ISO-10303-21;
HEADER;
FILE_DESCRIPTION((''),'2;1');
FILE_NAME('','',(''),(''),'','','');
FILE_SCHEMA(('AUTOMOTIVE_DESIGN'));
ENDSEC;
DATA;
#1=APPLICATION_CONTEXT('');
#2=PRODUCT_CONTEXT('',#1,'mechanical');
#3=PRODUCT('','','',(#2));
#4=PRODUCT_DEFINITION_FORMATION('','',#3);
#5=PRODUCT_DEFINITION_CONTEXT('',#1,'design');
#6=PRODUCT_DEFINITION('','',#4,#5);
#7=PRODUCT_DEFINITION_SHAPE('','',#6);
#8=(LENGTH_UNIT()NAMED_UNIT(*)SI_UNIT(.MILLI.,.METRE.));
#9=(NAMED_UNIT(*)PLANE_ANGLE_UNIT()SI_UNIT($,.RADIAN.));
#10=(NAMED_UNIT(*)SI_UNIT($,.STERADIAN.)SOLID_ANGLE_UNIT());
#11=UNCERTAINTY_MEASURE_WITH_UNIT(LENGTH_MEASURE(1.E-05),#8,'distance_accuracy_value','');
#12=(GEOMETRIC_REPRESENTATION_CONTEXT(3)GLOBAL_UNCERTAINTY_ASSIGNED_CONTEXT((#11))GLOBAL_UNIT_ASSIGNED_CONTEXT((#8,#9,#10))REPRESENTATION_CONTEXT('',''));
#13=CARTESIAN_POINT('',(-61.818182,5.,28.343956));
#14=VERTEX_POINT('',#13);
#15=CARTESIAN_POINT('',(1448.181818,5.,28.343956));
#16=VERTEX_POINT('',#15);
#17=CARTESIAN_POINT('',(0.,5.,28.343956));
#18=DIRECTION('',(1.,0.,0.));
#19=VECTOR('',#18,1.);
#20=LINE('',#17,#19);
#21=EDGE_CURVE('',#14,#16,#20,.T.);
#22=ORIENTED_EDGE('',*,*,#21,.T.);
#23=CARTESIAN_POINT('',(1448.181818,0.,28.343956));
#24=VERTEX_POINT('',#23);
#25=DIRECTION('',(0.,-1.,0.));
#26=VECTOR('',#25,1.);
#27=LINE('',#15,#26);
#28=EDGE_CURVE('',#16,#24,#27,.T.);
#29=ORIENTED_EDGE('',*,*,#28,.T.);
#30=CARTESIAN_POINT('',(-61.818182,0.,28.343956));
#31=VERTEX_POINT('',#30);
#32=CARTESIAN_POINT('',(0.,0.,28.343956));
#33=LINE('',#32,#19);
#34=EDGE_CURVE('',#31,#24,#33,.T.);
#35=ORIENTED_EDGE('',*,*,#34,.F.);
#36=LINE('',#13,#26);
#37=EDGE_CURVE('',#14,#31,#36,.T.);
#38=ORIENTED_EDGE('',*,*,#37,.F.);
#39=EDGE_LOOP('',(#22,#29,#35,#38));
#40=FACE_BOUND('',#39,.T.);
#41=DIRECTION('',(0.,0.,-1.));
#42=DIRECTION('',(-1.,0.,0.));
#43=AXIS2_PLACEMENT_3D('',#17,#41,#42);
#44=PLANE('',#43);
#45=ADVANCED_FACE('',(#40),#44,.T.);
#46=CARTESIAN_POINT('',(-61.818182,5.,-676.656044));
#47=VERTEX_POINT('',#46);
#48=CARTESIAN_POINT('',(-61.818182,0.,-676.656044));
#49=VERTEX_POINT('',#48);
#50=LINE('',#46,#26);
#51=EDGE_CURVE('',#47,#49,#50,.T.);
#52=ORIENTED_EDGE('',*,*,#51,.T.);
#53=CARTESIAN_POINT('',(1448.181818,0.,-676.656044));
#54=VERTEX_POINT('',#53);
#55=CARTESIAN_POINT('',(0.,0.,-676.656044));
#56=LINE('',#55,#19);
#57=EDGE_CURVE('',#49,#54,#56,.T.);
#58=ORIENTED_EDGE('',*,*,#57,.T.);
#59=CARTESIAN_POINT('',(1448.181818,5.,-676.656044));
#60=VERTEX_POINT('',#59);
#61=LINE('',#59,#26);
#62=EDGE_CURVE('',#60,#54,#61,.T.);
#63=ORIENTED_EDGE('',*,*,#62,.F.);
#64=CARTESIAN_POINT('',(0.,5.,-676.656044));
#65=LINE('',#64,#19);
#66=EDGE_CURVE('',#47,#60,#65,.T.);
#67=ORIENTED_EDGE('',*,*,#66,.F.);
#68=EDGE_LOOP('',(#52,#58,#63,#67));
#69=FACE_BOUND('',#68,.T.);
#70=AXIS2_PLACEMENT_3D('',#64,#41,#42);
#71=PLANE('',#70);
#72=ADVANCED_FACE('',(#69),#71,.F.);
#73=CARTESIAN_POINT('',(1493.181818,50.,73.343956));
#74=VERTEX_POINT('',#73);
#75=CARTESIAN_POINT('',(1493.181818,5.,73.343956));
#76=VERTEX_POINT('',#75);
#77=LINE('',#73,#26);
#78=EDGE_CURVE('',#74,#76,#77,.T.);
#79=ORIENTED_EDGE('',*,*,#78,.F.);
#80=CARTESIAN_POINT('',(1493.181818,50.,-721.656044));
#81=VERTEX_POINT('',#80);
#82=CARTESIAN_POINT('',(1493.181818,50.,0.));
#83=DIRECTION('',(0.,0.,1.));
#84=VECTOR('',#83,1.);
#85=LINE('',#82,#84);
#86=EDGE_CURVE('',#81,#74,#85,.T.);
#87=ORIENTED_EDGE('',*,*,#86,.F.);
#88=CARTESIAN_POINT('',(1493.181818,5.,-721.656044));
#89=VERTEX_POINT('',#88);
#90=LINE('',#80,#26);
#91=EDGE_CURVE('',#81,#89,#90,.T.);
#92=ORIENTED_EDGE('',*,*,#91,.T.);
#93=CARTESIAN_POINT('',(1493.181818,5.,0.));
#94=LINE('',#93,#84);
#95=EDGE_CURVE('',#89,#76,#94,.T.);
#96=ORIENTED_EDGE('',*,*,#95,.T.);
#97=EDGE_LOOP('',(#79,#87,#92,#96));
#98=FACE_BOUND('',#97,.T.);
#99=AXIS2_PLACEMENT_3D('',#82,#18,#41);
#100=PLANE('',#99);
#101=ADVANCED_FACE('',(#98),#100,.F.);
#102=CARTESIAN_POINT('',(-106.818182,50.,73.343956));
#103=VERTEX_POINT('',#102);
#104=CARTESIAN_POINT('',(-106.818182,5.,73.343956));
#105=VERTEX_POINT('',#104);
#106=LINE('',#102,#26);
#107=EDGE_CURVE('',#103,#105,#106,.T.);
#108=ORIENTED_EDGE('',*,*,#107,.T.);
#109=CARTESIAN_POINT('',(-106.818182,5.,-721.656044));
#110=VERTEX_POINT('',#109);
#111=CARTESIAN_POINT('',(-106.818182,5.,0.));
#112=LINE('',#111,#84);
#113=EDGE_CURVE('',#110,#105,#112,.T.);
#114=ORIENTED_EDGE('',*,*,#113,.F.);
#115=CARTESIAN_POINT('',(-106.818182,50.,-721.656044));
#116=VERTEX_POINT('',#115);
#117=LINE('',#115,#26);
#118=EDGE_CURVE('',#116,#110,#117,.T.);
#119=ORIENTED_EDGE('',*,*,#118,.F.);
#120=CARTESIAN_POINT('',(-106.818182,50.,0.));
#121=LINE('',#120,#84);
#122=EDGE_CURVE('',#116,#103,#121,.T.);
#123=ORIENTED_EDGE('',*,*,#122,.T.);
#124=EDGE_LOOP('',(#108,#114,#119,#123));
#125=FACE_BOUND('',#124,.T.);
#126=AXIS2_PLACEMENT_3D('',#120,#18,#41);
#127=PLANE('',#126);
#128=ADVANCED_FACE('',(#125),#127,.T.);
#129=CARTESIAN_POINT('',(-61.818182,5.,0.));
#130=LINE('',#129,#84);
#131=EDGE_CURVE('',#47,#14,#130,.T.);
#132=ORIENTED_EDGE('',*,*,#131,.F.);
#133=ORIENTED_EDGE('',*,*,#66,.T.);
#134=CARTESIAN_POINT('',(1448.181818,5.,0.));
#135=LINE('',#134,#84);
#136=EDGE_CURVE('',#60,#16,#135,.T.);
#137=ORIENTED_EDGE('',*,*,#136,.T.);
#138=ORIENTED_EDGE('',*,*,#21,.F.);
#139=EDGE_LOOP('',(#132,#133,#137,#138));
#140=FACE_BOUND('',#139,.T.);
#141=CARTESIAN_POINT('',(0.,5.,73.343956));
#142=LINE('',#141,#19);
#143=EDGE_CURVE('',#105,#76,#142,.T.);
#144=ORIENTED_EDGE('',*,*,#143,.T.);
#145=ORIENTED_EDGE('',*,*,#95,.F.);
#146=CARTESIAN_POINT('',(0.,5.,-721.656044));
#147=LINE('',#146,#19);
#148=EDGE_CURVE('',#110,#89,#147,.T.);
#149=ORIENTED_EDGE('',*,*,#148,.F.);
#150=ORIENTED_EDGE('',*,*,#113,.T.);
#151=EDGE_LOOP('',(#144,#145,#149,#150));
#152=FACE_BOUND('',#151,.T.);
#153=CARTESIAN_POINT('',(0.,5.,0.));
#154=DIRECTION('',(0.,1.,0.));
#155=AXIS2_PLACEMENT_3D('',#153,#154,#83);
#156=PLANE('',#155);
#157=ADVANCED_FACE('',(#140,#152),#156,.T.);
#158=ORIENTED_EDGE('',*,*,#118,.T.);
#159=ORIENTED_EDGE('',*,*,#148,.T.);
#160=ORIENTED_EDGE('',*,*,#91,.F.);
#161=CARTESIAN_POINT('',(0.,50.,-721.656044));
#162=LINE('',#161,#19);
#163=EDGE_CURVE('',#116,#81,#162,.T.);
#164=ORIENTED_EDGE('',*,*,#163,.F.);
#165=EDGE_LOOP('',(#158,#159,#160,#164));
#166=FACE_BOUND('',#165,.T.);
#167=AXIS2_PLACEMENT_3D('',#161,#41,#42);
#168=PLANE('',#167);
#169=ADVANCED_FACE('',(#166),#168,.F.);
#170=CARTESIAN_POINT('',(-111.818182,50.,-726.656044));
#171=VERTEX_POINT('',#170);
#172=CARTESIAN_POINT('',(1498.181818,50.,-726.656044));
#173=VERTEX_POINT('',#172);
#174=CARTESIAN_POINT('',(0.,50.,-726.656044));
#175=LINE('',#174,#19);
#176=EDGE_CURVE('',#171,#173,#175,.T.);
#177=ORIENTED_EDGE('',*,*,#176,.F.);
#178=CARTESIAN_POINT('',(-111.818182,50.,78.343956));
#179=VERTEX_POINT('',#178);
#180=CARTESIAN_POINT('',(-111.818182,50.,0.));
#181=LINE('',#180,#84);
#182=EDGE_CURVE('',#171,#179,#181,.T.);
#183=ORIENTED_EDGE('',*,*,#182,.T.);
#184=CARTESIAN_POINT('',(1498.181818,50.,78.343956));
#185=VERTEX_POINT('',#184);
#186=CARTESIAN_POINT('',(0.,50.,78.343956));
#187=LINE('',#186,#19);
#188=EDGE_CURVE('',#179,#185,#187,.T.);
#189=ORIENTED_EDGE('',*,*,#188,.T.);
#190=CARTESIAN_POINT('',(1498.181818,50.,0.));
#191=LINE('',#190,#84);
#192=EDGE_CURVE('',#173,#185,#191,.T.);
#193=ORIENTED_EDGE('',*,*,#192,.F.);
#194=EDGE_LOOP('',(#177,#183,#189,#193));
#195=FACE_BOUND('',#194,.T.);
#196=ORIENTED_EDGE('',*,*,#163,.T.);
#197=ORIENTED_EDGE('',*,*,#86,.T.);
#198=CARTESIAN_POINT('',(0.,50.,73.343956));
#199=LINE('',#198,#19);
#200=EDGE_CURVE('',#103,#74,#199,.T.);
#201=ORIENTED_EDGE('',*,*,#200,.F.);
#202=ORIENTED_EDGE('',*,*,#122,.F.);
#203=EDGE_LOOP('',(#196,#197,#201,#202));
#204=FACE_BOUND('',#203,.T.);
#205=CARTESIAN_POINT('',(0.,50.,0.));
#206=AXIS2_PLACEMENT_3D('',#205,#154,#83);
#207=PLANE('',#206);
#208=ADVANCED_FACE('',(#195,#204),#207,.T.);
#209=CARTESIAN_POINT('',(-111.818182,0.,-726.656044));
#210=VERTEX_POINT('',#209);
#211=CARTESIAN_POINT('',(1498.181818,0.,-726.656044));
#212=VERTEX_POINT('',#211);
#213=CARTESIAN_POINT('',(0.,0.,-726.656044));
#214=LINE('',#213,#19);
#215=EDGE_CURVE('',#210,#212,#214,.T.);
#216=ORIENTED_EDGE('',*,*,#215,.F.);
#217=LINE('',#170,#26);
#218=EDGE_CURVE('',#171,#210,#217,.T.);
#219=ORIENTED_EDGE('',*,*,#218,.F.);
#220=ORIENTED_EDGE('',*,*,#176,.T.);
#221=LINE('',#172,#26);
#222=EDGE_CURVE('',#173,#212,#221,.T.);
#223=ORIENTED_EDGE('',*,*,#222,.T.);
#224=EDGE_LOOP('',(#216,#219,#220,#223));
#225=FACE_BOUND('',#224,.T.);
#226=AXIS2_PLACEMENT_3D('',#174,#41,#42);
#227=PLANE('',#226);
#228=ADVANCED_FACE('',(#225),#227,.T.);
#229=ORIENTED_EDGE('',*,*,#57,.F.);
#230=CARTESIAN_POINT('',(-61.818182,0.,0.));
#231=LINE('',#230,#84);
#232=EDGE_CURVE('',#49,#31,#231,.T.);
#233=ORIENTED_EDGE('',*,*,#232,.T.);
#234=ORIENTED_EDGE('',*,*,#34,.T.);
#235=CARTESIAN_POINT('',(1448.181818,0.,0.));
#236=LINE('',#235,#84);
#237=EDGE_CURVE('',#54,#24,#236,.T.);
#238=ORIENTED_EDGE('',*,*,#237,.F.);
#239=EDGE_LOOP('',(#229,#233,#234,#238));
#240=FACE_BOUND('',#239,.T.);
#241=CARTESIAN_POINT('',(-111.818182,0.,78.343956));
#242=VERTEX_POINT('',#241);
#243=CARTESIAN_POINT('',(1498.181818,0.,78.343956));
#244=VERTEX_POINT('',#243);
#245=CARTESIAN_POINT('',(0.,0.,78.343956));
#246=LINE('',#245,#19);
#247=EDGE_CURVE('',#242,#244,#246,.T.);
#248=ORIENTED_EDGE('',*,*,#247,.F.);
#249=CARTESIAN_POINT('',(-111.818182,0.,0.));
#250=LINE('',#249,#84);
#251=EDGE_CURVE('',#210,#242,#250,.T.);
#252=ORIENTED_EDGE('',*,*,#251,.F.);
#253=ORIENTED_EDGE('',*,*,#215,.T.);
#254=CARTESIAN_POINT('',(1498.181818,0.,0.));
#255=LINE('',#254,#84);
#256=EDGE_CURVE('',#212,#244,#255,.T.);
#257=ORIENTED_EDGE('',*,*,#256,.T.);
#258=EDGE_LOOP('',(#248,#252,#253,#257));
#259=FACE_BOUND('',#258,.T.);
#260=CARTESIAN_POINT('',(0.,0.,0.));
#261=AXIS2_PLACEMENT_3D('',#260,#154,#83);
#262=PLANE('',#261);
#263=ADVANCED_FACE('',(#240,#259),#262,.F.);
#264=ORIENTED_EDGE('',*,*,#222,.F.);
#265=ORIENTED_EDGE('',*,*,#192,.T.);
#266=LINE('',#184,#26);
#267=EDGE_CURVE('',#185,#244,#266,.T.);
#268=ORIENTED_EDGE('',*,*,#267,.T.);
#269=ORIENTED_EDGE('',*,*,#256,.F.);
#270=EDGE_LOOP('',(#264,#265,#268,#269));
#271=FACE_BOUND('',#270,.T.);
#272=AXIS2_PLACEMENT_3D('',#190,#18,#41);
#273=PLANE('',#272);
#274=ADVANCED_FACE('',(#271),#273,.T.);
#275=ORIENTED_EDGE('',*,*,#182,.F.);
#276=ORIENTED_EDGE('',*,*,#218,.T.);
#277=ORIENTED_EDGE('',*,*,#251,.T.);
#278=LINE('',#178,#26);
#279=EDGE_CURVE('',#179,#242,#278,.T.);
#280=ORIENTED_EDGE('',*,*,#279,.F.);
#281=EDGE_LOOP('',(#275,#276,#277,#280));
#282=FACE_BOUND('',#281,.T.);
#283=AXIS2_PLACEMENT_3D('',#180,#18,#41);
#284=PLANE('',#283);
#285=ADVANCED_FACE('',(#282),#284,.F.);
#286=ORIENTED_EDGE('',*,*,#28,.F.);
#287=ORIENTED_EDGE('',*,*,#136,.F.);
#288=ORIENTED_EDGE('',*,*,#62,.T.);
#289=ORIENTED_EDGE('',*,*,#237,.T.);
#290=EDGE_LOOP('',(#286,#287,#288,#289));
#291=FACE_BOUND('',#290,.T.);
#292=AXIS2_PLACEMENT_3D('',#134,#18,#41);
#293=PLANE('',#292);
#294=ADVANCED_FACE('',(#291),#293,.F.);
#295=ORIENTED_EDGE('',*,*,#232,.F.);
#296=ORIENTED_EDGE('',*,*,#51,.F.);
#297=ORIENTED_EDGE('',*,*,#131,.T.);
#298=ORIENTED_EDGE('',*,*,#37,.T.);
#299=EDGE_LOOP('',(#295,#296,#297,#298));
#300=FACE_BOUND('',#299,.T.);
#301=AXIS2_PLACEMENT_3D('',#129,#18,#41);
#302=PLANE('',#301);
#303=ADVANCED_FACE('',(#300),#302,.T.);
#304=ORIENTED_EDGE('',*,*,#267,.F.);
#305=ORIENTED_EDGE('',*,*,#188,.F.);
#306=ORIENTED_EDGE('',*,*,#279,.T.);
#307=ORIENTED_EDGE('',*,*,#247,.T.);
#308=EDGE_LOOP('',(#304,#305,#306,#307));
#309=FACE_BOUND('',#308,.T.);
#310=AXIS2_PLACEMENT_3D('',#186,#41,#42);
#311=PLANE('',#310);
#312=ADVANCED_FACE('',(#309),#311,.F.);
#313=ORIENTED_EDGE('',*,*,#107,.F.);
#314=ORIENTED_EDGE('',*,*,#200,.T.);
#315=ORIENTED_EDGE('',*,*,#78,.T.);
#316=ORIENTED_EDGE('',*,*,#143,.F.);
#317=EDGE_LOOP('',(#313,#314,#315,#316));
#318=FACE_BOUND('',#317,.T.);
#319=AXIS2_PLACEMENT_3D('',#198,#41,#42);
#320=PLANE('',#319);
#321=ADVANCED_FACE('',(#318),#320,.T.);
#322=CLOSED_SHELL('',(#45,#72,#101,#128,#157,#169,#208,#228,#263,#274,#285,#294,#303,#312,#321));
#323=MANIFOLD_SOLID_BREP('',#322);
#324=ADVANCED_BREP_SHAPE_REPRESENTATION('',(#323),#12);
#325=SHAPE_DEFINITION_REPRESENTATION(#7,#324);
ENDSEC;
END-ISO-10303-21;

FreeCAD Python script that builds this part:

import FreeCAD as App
import Part
import Sketcher

V = App.Vector

doc = App.newDocument("Part")
body = doc.addObject("PartDesign::Body", "Body")

sketch1 = doc.addObject("Sketcher::SketchObject", "Sketch")
body.addObject(sketch1)
sketch1.AttachmentSupport = (doc.XZ_Plane, [""])
sketch1.MapMode = "FlatFace"
sketch1.addGeometry(Part.LineSegment(V(-112, -727, 0), V(-112, 78, 0)), False)
sketch1.addGeometry(Part.LineSegment(V(-112, 78, 0), V(1498, 78, 0)), False)
sketch1.addGeometry(Part.LineSegment(V(1498, 78, 0), V(1498, -727, 0)), False)
sketch1.addGeometry(Part.LineSegment(V(1498, -727, 0), V(-112, -727, 0)), False)
sketch1.addGeometry(Part.LineSegment(V(1493, 73, 0), V(-107, 73, 0)), False)
sketch1.addGeometry(Part.LineSegment(V(-107, 73, 0), V(-107, -722, 0)), False)
sketch1.addGeometry(Part.LineSegment(V(-107, -722, 0), V(1493, -722, 0)), False)
sketch1.addGeometry(Part.LineSegment(V(1493, -722, 0), V(1493, 73, 0)), False)
sketch1.addConstraint(Sketcher.Constraint("Coincident", 0, 2, 1, 1))
sketch1.addConstraint(Sketcher.Constraint("Coincident", 1, 2, 2, 1))
sketch1.addConstraint(Sketcher.Constraint("Coincident", 2, 2, 3, 1))
sketch1.addConstraint(Sketcher.Constraint("Coincident", 3, 2, 0, 1))
sketch1.addConstraint(Sketcher.Constraint("Coincident", 4, 2, 5, 1))
sketch1.addConstraint(Sketcher.Constraint("Coincident", 5, 2, 6, 1))
sketch1.addConstraint(Sketcher.Constraint("Coincident", 6, 2, 7, 1))
sketch1.addConstraint(Sketcher.Constraint("Coincident", 7, 2, 4, 1))
sketch1.addConstraint(Sketcher.Constraint("Vertical", 0))
sketch1.addConstraint(Sketcher.Constraint("Horizontal", 1))
sketch1.addConstraint(Sketcher.Constraint("Vertical", 2))
sketch1.addConstraint(Sketcher.Constraint("Horizontal", 3))
sketch1.addConstraint(Sketcher.Constraint("Horizontal", 4))
sketch1.addConstraint(Sketcher.Constraint("Vertical", 5))
sketch1.addConstraint(Sketcher.Constraint("Horizontal", 6))
sketch1.addConstraint(Sketcher.Constraint("Vertical", 7))
sketch1.addConstraint(Sketcher.Constraint("DistanceX", 1, 1, 1, 2, 1610.0))
sketch1.addConstraint(Sketcher.Constraint("DistanceX", 4, 2, 4, 1, 1600.0))
sketch1.addConstraint(Sketcher.Constraint("DistanceY", 0, 1, 0, 2, 805.0))
sketch1.addConstraint(Sketcher.Constraint("DistanceY", 5, 2, 5, 1, 795.0))
sketch1.addConstraint(Sketcher.Constraint("DistanceX", 0, 2, 4, 2, 5.0))
sketch1.addConstraint(Sketcher.Constraint("DistanceY", 4, 2, 0, 2, 5.0))
sketch1.addConstraint(Sketcher.Constraint("DistanceX", 0, 2, -1, 1, 111.818182))
sketch1.addConstraint(Sketcher.Constraint("DistanceY", -1, 1, 0, 2, 78.343956))
pad1 = doc.addObject("PartDesign::Pad", "Pad")
body.addObject(pad1)
pad1.Profile = sketch1
pad1.Length = 50
pad1.Reversed = True

sketch2 = doc.addObject("Sketcher::SketchObject", "Sketch001")
body.addObject(sketch2)
sketch2.AttachmentSupport = (doc.XZ_Plane, [""])
sketch2.MapMode = "FlatFace"
sketch2.addGeometry(Part.LineSegment(V(-107, -722, 0), V(-107, 73, 0)), False)
sketch2.addGeometry(Part.LineSegment(V(-107, 73, 0), V(1493, 73, 0)), False)
sketch2.addGeometry(Part.LineSegment(V(1493, 73, 0), V(1493, -722, 0)), False)
sketch2.addGeometry(Part.LineSegment(V(1493, -722, 0), V(-107, -722, 0)), False)
sketch2.addGeometry(Part.LineSegment(V(1448, 28, 0), V(-62, 28, 0)), False)
sketch2.addGeometry(Part.LineSegment(V(-62, 28, 0), V(-62, -677, 0)), False)
sketch2.addGeometry(Part.LineSegment(V(-62, -677, 0), V(1448, -677, 0)), False)
sketch2.addGeometry(Part.LineSegment(V(1448, -677, 0), V(1448, 28, 0)), False)
sketch2.addConstraint(Sketcher.Constraint("Coincident", 0, 2, 1, 1))
sketch2.addConstraint(Sketcher.Constraint("Coincident", 1, 2, 2, 1))
sketch2.addConstraint(Sketcher.Constraint("Coincident", 2, 2, 3, 1))
sketch2.addConstraint(Sketcher.Constraint("Coincident", 3, 2, 0, 1))
sketch2.addConstraint(Sketcher.Constraint("Coincident", 4, 2, 5, 1))
sketch2.addConstraint(Sketcher.Constraint("Coincident", 5, 2, 6, 1))
sketch2.addConstraint(Sketcher.Constraint("Coincident", 6, 2, 7, 1))
sketch2.addConstraint(Sketcher.Constraint("Coincident", 7, 2, 4, 1))
sketch2.addConstraint(Sketcher.Constraint("Vertical", 0))
sketch2.addConstraint(Sketcher.Constraint("Horizontal", 1))
sketch2.addConstraint(Sketcher.Constraint("Vertical", 2))
sketch2.addConstraint(Sketcher.Constraint("Horizontal", 3))
sketch2.addConstraint(Sketcher.Constraint("Horizontal", 4))
sketch2.addConstraint(Sketcher.Constraint("Vertical", 5))
sketch2.addConstraint(Sketcher.Constraint("Horizontal", 6))
sketch2.addConstraint(Sketcher.Constraint("Vertical", 7))
sketch2.addConstraint(Sketcher.Constraint("DistanceX", 1, 1, 1, 2, 1600.0))
sketch2.addConstraint(Sketcher.Constraint("DistanceX", 4, 2, 4, 1, 1510.0))
sketch2.addConstraint(Sketcher.Constraint("DistanceY", 0, 1, 0, 2, 795.0))
sketch2.addConstraint(Sketcher.Constraint("DistanceY", 5, 2, 5, 1, 705.0))
sketch2.addConstraint(Sketcher.Constraint("DistanceX", 0, 2, 4, 2, 45.0))
sketch2.addConstraint(Sketcher.Constraint("DistanceY", 4, 2, 0, 2, 45.0))
sketch2.addConstraint(Sketcher.Constraint("DistanceX", 0, 2, -1, 1, 106.818182))
sketch2.addConstraint(Sketcher.Constraint("DistanceY", -1, 1, 0, 2, 73.343956))
pad2 = doc.addObject("PartDesign::Pad", "Pad001")
body.addObject(pad2)
pad2.Profile = sketch2
pad2.Length = 5
pad2.Reversed = True

doc.recompute()
